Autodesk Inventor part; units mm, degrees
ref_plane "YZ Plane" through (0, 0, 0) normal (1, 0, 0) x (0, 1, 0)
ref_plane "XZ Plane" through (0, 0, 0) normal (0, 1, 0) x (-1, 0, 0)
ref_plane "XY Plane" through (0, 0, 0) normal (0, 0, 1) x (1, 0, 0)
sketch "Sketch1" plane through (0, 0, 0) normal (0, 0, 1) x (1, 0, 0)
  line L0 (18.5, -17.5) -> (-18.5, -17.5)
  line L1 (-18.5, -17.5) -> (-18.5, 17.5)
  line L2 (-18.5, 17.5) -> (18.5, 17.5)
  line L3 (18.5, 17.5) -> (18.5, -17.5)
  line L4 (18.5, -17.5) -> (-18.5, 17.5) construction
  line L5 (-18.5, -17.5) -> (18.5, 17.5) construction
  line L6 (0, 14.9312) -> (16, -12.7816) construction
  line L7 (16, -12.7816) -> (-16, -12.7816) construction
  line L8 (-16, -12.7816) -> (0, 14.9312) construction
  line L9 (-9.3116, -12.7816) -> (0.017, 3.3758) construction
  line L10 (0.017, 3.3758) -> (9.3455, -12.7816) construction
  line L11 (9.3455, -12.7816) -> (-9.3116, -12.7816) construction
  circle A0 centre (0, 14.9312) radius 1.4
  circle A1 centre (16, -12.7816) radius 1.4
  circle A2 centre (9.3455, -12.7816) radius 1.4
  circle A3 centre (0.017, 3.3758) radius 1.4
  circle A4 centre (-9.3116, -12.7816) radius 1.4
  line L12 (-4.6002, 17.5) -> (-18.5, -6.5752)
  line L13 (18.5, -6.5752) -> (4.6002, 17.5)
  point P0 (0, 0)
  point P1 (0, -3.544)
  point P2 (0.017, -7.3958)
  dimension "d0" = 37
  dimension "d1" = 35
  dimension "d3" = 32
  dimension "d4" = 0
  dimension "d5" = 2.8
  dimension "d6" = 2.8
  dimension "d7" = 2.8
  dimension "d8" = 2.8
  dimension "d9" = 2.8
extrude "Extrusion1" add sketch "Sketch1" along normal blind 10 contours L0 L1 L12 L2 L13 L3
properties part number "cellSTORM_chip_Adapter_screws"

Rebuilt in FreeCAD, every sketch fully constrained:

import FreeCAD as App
import Part
import Sketcher
Q = App.Units.Quantity

doc = App.newDocument("Part")
params = doc.addObject("Spreadsheet::Sheet", "Params")
for row, (alias, value) in enumerate([
    ("sketch1_diameter", "2.8 mm"),
    ("sketch1_width", "37 mm"),
    ("pad1_length", "10 mm"),
], start=1):
    params.set(f"A{row}", alias)
    params.set(f"B{row}", "=" + value)
    params.setAlias(f"B{row}", alias)

body = doc.addObject("PartDesign::Body", "Body")

# Sketch on XY plane
sketch1 = body.newObject("Sketcher::SketchObject", "Sketch")
sketch1.AttachmentSupport = (doc.getObject("XY_Plane"), [""])
sketch1.MapMode = "FlatFace"
sketch1.addGeometry([
    Part.LineSegment(App.Vector(-18.5, -17.5, 0), App.Vector(18.5, -17.5, 0)),  # 0
    Part.LineSegment(App.Vector(18.5, -17.5, 0), App.Vector(18.5, -6.5752, 0)),  # 1
    Part.LineSegment(App.Vector(18.5, -6.5752, 0), App.Vector(4.6002, 17.5, 0)),  # 2
    Part.LineSegment(App.Vector(4.6002, 17.5, 0), App.Vector(-4.6002, 17.5, 0)),  # 3
    Part.LineSegment(App.Vector(-4.6002, 17.5, 0), App.Vector(-18.5, -6.5752, 0)),  # 4
    Part.LineSegment(App.Vector(-18.5, -6.5752, 0), App.Vector(-18.5, -17.5, 0)),  # 5
    Part.Circle(App.Vector(-9.3116, -12.7816, 0), App.Vector(0, 0, 1), 1.4),  # 6
    Part.Circle(App.Vector(9.3455, -12.7816, 0), App.Vector(0, 0, 1), 1.4),  # 7
    Part.Circle(App.Vector(16, -12.7816, 0), App.Vector(0, 0, 1), 1.4),  # 8
    Part.Circle(App.Vector(0.017, 3.3758, 0), App.Vector(0, 0, 1), 1.4),  # 9
    Part.Circle(App.Vector(0, 14.9312, 0), App.Vector(0, 0, 1), 1.4),  # 10
], False)
sketch1.addConstraint([
    Sketcher.Constraint("Coincident", 0, 2, 1, 1),
    Sketcher.Constraint("Coincident", 1, 2, 2, 1),
    Sketcher.Constraint("Coincident", 2, 2, 3, 1),
    Sketcher.Constraint("Coincident", 3, 2, 4, 1),
    Sketcher.Constraint("Coincident", 4, 2, 5, 1),
    Sketcher.Constraint("Coincident", 5, 2, 0, 1),
    Sketcher.Constraint("Horizontal", 0),
    Sketcher.Constraint("Vertical", 1),
    Sketcher.Constraint("Horizontal", 3),
    Sketcher.Constraint("Vertical", 5),
    Sketcher.Constraint("Equal", 6, 7),
    Sketcher.Constraint("Equal", 7, 8),
    Sketcher.Constraint("Equal", 8, 9),
    Sketcher.Constraint("Equal", 9, 10),
    Sketcher.Constraint("Symmetric", 1, 2, 4, 2, -2),
    Sketcher.Constraint("PointOnObject", 10, 3, -2),
    Sketcher.Constraint("Horizontal", 6, 3, 7, 3),
    Sketcher.Constraint("Horizontal", 7, 3, 8, 3),
    Sketcher.Constraint("Equal", 2, 4),
    Sketcher.Constraint("Diameter", 6, 2.8),
    Sketcher.Constraint("DistanceX", 0, 1, 0, 2, 37.0),
    Sketcher.Constraint("Angle", 2, Q("120 deg")),
    Sketcher.Constraint("DistanceX", -1, 1, 8, 3, 16.0),
    Sketcher.Constraint("DistanceY", 0, 2, -1, 1, 17.5),
    Sketcher.Constraint("DistanceY", -1, 1, 2, 2, 17.5),
    Sketcher.Constraint("DistanceX", 3, 2, 3, 1, 9.2004),
    Sketcher.Constraint("DistanceX", -1, 1, 9, 3, 0.017),
    Sketcher.Constraint("DistanceX", 6, 3, 7, 3, 18.657),
    Sketcher.Constraint("DistanceY", 1, 2, 9, 3, 9.951),
    Sketcher.Constraint("DistanceX", 6, 3, -1, 1, 9.3116),
    Sketcher.Constraint("DistanceY", 6, 3, -1, 1, 12.7816),
    Sketcher.Constraint("DistanceY", -1, 1, 10, 3, 14.9312),
])
sketch1.setExpression("Constraints[19]", "Params.sketch1_diameter")
sketch1.setExpression("Constraints[20]", "Params.sketch1_width")
pad1 = body.newObject("PartDesign::Pad", "Pad")
pad1.Profile = sketch1
pad1.setExpression("Length", "Params.pad1_length")

doc.recompute()
